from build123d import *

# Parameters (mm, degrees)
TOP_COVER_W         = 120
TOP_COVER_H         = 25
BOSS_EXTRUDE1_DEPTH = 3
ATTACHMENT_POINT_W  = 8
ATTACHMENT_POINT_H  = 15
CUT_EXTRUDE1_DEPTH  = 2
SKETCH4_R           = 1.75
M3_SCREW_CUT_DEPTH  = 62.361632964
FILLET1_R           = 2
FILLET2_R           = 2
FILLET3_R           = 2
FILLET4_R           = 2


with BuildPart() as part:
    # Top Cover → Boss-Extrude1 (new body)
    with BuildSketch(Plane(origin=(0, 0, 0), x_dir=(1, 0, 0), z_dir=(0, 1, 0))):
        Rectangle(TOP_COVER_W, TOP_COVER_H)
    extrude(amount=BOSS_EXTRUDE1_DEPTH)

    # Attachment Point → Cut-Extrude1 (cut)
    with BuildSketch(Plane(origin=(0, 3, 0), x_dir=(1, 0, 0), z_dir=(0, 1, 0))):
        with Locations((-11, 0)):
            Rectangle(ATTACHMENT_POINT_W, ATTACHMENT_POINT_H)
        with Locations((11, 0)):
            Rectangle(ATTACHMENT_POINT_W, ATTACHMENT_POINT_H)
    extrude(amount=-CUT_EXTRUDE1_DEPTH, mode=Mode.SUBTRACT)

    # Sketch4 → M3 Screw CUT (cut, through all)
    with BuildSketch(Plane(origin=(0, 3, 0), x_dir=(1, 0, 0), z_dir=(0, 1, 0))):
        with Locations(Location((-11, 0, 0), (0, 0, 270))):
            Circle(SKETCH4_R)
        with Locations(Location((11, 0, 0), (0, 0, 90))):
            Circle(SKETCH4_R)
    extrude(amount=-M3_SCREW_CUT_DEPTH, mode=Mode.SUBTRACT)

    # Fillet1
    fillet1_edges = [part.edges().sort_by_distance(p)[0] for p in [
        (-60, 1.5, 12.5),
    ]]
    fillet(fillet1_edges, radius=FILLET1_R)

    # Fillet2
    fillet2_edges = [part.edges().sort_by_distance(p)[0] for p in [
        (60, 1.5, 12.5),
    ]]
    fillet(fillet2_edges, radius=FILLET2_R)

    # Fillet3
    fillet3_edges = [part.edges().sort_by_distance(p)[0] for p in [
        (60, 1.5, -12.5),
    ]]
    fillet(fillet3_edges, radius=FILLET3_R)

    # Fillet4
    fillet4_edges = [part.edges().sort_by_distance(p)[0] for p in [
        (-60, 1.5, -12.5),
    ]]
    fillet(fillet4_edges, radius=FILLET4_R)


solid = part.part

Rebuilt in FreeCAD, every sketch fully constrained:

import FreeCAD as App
import Part
import Sketcher
from FreeCAD import Vector
Q = App.Units.Quantity


def edges_at(feature, points):
    """Names of the edges that pass closest to the given points."""
    edges = feature.Shape.Edges
    near = lambda p: min(range(len(edges)), key=lambda i: edges[i].distToShape(Part.Vertex(*p))[0])
    return sorted({f"Edge{near(p) + 1}" for p in points})


def add_polygon(sketch, points):
    """Adds a closed chain of lines whose ends are joined by coincident constraints."""
    first, n = sketch.GeometryCount, len(points)
    for a, b in zip(points, points[1:] + points[:1]):
        sketch.addGeometry(Part.LineSegment(App.Vector(*a, 0), App.Vector(*b, 0)), False)
    for i in range(n):
        sketch.addConstraint(Sketcher.Constraint("Coincident", first + i, 2, first + (i + 1) % n, 1))

doc = App.newDocument("Part")
body = doc.addObject("PartDesign::Body", "Body")

# Sketch on XZ plane
sketch1 = body.newObject("Sketcher::SketchObject", "Sketch")
sketch1.AttachmentSupport = (doc.getObject("XZ_Plane"), [""])
sketch1.MapMode = "FlatFace"
add_polygon(sketch1, [(-60, -12.5), (-60, 12.5), (60, 12.5), (60, -12.5)])  # lines 0-3
sketch1.addConstraint(Sketcher.Constraint("Vertical", 0))
sketch1.addConstraint(Sketcher.Constraint("Horizontal", 1))
sketch1.addConstraint(Sketcher.Constraint("Vertical", 2))
sketch1.addConstraint(Sketcher.Constraint("Horizontal", 3))
sketch1.addConstraint(Sketcher.Constraint("Symmetric", 0, 2, 2, 2, -1, 1))
sketch1.addConstraint(Sketcher.Constraint("DistanceX", 1, 1, 1, 2, Q("120 mm")))
sketch1.addConstraint(Sketcher.Constraint("DistanceY", 0, 1, 0, 2, Q("25 mm")))
pad1 = body.newObject("PartDesign::Pad", "Pad")
pad1.Profile = sketch1
pad1.Length = 3
pad1.Reversed = True

# Sketch on XZ plane
sketch2 = body.newObject("Sketcher::SketchObject", "Sketch001")
sketch2.AttachmentSupport = (doc.getObject("XZ_Plane"), [""])
sketch2.MapMode = "FlatFace"
sketch2.AttachmentOffset = App.Placement(Vector(0, 0, -3), App.Rotation())
add_polygon(sketch2, [(-15, -7.5), (-15, 7.5), (-7, 7.5), (-7, -7.5)])  # lines 0-3
add_polygon(sketch2, [(7, -7.5), (7, 7.5), (15, 7.5), (15, -7.5)])  # lines 4-7
sketch2.addConstraint(Sketcher.Constraint("Vertical", 0))
sketch2.addConstraint(Sketcher.Constraint("Horizontal", 1))
sketch2.addConstraint(Sketcher.Constraint("Vertical", 2))
sketch2.addConstraint(Sketcher.Constraint("Horizontal", 3))
sketch2.addConstraint(Sketcher.Constraint("Vertical", 4))
sketch2.addConstraint(Sketcher.Constraint("Horizontal", 5))
sketch2.addConstraint(Sketcher.Constraint("Vertical", 6))
sketch2.addConstraint(Sketcher.Constraint("Horizontal", 7))
sketch2.addConstraint(Sketcher.Constraint("Symmetric", 2, 2, 4, 2, -1, 1))
sketch2.addConstraint(Sketcher.Constraint("Symmetric", 0, 2, 6, 2, -1, 1))
sketch2.addConstraint(Sketcher.Constraint("Horizontal", 1, 2, 4, 2))
sketch2.addConstraint(Sketcher.Constraint("DistanceX", 1, 1, 1, 2, Q("8 mm")))
sketch2.addConstraint(Sketcher.Constraint("DistanceY", 0, 1, 0, 2, Q("15 mm")))
sketch2.addConstraint(Sketcher.Constraint("DistanceX", 0, 2, -1, 1, Q("15 mm")))
pocket1 = body.newObject("PartDesign::Pocket", "Pocket")
pocket1.Profile = sketch2
pocket1.Length = 2
pocket1.Reversed = True

# Sketch on XZ plane
sketch3 = body.newObject("Sketcher::SketchObject", "Sketch002")
sketch3.AttachmentSupport = (doc.getObject("XZ_Plane"), [""])
sketch3.MapMode = "FlatFace"
sketch3.AttachmentOffset = App.Placement(Vector(0, 0, -3), App.Rotation())
sketch3.addGeometry(Part.Circle(Vector(-11, 0, 0), Vector(0, 0, 1), 1.75), False)
sketch3.addGeometry(Part.Circle(Vector(11, 0, 0), Vector(0, 0, 1), 1.75), False)
sketch3.addConstraint(Sketcher.Constraint("Equal", 0, 1))
sketch3.addConstraint(Sketcher.Constraint("Symmetric", 0, 3, 1, 3, -1, 1))
sketch3.addConstraint(Sketcher.Constraint("PointOnObject", 0, 3, -1))
sketch3.addConstraint(Sketcher.Constraint("Diameter", 0, Q("3.5 mm")))
sketch3.addConstraint(Sketcher.Constraint("DistanceX", 0, 3, -1, 1, Q("11 mm")))
pocket2 = body.newObject("PartDesign::Pocket", "Pocket001")
pocket2.Profile = sketch3
pocket2.Type = "ThroughAll"
pocket2.Reversed = True
doc.recompute()

fillet = body.newObject("PartDesign::Fillet", "Fillet")
fillet.Base = (pocket2, edges_at(pocket2, [(-60, 1.5, 12.5)]))
fillet.Radius = 2
doc.recompute()

fillet2 = body.newObject("PartDesign::Fillet", "Fillet001")
fillet2.Base = (fillet, edges_at(fillet, [(60, 1.5, 12.5)]))
fillet2.Radius = 2
doc.recompute()

fillet3 = body.newObject("PartDesign::Fillet", "Fillet002")
fillet3.Base = (fillet2, edges_at(fillet2, [(60, 1.5, -12.5)]))
fillet3.Radius = 2
doc.recompute()

fillet4 = body.newObject("PartDesign::Fillet", "Fillet003")
fillet4.Base = (fillet3, edges_at(fillet3, [(-60, 1.5, -12.5)]))
fillet4.Radius = 2

doc.recompute()
